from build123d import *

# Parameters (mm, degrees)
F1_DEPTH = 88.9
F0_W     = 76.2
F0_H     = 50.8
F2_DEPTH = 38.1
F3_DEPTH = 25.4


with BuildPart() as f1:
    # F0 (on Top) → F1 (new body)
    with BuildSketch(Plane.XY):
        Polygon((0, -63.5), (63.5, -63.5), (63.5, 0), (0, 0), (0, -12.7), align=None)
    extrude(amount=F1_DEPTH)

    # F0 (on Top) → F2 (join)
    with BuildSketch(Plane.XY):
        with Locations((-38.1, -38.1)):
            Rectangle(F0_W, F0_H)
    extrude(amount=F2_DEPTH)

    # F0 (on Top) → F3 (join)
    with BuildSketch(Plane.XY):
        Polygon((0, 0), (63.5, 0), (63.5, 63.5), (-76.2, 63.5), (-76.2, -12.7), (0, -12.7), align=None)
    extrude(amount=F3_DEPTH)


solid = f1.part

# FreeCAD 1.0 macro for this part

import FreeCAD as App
import Part
import Sketcher
Q = App.Units.Quantity

doc = App.newDocument("Part")
body = doc.addObject("PartDesign::Body", "Body")

# Sketch on XY plane
sketch1 = body.newObject("Sketcher::SketchObject", "Sketch")
sketch1.AttachmentSupport = (doc.getObject("XY_Plane"), [""])
sketch1.MapMode = "FlatFace"
sketch1.addGeometry([
    Part.LineSegment(App.Vector(0, -63.5, 0), App.Vector(63.5, -63.5, 0)),
    Part.LineSegment(App.Vector(63.5, -63.5, 0), App.Vector(63.5, 0, 0)),
    Part.LineSegment(App.Vector(63.5, 0, 0), App.Vector(0, 0, 0)),
    Part.LineSegment(App.Vector(0, 0, 0), App.Vector(0, -63.5, 0)),
], False)
sketch1.addConstraint([
    Sketcher.Constraint("Coincident", 0, 2, 1, 1),
    Sketcher.Constraint("Coincident", 1, 2, 2, 1),
    Sketcher.Constraint("Coincident", 2, 2, 3, 1),
    Sketcher.Constraint("Coincident", 3, 2, 0, 1),
    Sketcher.Constraint("Horizontal", 0),
    Sketcher.Constraint("Vertical", 1),
    Sketcher.Constraint("Horizontal", 2),
    Sketcher.Constraint("Vertical", 3),
    Sketcher.Constraint("Coincident", 2, 2, -1, 1),
    Sketcher.Constraint("Equal", 2, 1),
    Sketcher.Constraint("DistanceX", 0, 1, 0, 2, Q("2.5 in")),
])
pad1 = body.newObject("PartDesign::Pad", "Pad")
pad1.Profile = sketch1
pad1.Length = Q("3.5 in")

# Sketch on XY plane
sketch2 = body.newObject("Sketcher::SketchObject", "Sketch001")
sketch2.AttachmentSupport = (doc.getObject("XY_Plane"), [""])
sketch2.MapMode = "FlatFace"
sketch2.addGeometry([
    Part.LineSegment(App.Vector(-76.2, -12.7, 0), App.Vector(-76.2, -63.5, 0)),
    Part.LineSegment(App.Vector(-76.2, -63.5, 0), App.Vector(0, -63.5, 0)),
    Part.LineSegment(App.Vector(0, -63.5, 0), App.Vector(0, -12.7, 0)),
    Part.LineSegment(App.Vector(0, -12.7, 0), App.Vector(-76.2, -12.7, 0)),
], False)
sketch2.addConstraint([
    Sketcher.Constraint("Coincident", 0, 2, 1, 1),
    Sketcher.Constraint("Coincident", 1, 2, 2, 1),
    Sketcher.Constraint("Coincident", 2, 2, 3, 1),
    Sketcher.Constraint("Coincident", 3, 2, 0, 1),
    Sketcher.Constraint("Vertical", 0),
    Sketcher.Constraint("Horizontal", 1),
    Sketcher.Constraint("Vertical", 2),
    Sketcher.Constraint("Horizontal", 3),
    Sketcher.Constraint("PointOnObject", 1, 2, -2),
    Sketcher.Constraint("DistanceX", 1, 1, 1, 2, Q("3 in")),
    Sketcher.Constraint("DistanceY", 0, 2, 0, 1, Q("2 in")),
    Sketcher.Constraint("DistanceY", 0, 2, -1, 1, Q("2.5 in")),
])
pad2 = body.newObject("PartDesign::Pad", "Pad001")
pad2.Profile = sketch2
pad2.Length = Q("1.5 in")

# Sketch on XY plane
sketch3 = body.newObject("Sketcher::SketchObject", "Sketch002")
sketch3.AttachmentSupport = (doc.getObject("XY_Plane"), [""])
sketch3.MapMode = "FlatFace"
sketch3.addGeometry([
    Part.LineSegment(App.Vector(0, 0, 0), App.Vector(63.5, 0, 0)),  # 0
    Part.LineSegment(App.Vector(63.5, 0, 0), App.Vector(63.5, 63.5, 0)),  # 1
    Part.LineSegment(App.Vector(63.5, 63.5, 0), App.Vector(-76.2, 63.5, 0)),  # 2
    Part.LineSegment(App.Vector(-76.2, 63.5, 0), App.Vector(-76.2, -12.7, 0)),  # 3
    Part.LineSegment(App.Vector(-76.2, -12.7, 0), App.Vector(0, -12.7, 0)),  # 4
    Part.LineSegment(App.Vector(0, -12.7, 0), App.Vector(0, 0, 0)),  # 5
], False)
sketch3.addConstraint([
    Sketcher.Constraint("Coincident", 0, 2, 1, 1),
    Sketcher.Constraint("Coincident", 1, 2, 2, 1),
    Sketcher.Constraint("Coincident", 2, 2, 3, 1),
    Sketcher.Constraint("Coincident", 3, 2, 4, 1),
    Sketcher.Constraint("Coincident", 4, 2, 5, 1),
    Sketcher.Constraint("Coincident", 5, 2, 0, 1),
    Sketcher.Constraint("Horizontal", 0),
    Sketcher.Constraint("Vertical", 1),
    Sketcher.Constraint("Horizontal", 2),
    Sketcher.Constraint("Vertical", 3),
    Sketcher.Constraint("Horizontal", 4),
    Sketcher.Constraint("Vertical", 5),
    Sketcher.Constraint("Coincident", 5, 2, -1, 1),
    Sketcher.Constraint("Equal", 0, 1),
    Sketcher.Constraint("Equal", 4, 3),
    Sketcher.Constraint("DistanceX", 4, 1, 4, 2, Q("3 in")),
    Sketcher.Constraint("DistanceX", 0, 1, 0, 2, Q("2.5 in")),
])
pad3 = body.newObject("PartDesign::Pad", "Pad002")
pad3.Profile = sketch3
pad3.Length = Q("1 in")

doc.recompute()
